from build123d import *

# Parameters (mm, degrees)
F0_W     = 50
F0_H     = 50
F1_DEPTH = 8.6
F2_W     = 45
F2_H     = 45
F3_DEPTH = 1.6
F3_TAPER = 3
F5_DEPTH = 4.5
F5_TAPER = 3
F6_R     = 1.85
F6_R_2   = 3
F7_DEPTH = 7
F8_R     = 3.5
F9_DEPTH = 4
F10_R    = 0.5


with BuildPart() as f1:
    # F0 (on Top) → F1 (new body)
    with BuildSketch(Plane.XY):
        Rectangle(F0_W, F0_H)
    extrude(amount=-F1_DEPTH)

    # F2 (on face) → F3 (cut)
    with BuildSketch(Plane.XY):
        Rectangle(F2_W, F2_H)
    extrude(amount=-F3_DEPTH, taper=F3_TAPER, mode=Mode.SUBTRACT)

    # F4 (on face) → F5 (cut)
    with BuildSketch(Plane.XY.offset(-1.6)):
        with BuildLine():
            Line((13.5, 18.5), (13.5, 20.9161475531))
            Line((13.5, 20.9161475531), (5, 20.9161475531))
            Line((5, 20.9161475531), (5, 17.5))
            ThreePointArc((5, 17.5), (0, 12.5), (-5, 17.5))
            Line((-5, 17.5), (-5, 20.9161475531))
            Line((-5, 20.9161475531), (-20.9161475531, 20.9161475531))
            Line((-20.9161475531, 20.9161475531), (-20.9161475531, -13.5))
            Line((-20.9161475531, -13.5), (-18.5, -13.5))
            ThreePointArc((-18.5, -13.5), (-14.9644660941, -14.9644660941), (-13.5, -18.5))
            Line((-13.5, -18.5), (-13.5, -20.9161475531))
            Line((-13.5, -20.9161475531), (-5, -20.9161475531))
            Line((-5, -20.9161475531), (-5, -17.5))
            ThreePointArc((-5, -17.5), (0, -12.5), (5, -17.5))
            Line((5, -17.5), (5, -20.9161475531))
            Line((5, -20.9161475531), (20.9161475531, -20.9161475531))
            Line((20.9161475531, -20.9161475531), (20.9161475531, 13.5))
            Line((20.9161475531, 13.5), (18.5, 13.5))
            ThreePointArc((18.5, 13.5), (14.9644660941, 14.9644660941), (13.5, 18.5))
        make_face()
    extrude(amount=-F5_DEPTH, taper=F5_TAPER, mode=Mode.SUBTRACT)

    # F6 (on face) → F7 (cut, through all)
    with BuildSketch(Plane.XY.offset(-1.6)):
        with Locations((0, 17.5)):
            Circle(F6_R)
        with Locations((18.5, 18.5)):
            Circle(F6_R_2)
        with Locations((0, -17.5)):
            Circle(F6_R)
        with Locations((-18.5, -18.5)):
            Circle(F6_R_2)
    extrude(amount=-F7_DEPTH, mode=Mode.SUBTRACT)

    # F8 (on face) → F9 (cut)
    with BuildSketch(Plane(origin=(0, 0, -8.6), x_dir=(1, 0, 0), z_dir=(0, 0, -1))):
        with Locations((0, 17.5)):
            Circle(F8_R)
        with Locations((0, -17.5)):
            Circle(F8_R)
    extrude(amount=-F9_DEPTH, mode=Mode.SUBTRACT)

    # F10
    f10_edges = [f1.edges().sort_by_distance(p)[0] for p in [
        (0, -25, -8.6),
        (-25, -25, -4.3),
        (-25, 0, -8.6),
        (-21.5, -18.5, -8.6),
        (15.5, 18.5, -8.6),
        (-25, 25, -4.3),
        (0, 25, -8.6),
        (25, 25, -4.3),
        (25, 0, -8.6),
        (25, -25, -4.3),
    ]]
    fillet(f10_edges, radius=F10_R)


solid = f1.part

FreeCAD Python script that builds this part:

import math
import FreeCAD as App
import Part
import Sketcher

V = App.Vector
Q = App.Units.Quantity


def edges_at(feature, points):
    """Names of the edges that pass closest to the given points."""
    edges = feature.Shape.Edges
    near = lambda p: min(range(len(edges)), key=lambda i: edges[i].distToShape(Part.Vertex(*p))[0])
    return sorted({f"Edge{near(p) + 1}" for p in points})

doc = App.newDocument("Part")
body = doc.addObject("PartDesign::Body", "Body")

# Sketch on XY plane
sketch1 = doc.addObject("Sketcher::SketchObject", "Sketch")
body.addObject(sketch1)
sketch1.AttachmentSupport = (doc.XY_Plane, [""])
sketch1.MapMode = "FlatFace"
sketch1.addGeometry(Part.LineSegment(V(-25, 25, 0), V(-25, -25, 0)), False)
sketch1.addGeometry(Part.LineSegment(V(-25, -25, 0), V(25, -25, 0)), False)
sketch1.addGeometry(Part.LineSegment(V(25, -25, 0), V(25, 25, 0)), False)
sketch1.addGeometry(Part.LineSegment(V(25, 25, 0), V(-25, 25, 0)), False)
sketch1.addConstraint(Sketcher.Constraint("Coincident", 0, 2, 1, 1))
sketch1.addConstraint(Sketcher.Constraint("Coincident", 1, 2, 2, 1))
sketch1.addConstraint(Sketcher.Constraint("Coincident", 2, 2, 3, 1))
sketch1.addConstraint(Sketcher.Constraint("Coincident", 3, 2, 0, 1))
sketch1.addConstraint(Sketcher.Constraint("Vertical", 0))
sketch1.addConstraint(Sketcher.Constraint("Horizontal", 1))
sketch1.addConstraint(Sketcher.Constraint("Vertical", 2))
sketch1.addConstraint(Sketcher.Constraint("Horizontal", 3))
sketch1.addConstraint(Sketcher.Constraint("Symmetric", 0, 2, 2, 2, -1, 1))
sketch1.addConstraint(Sketcher.Constraint("Equal", 3, 0))
sketch1.addConstraint(Sketcher.Constraint("DistanceX", 1, 1, 1, 2, Q("50 mm")))
pad1 = doc.addObject("PartDesign::Pad", "Pad")
body.addObject(pad1)
pad1.Profile = sketch1
pad1.Length = 8.6
pad1.Reversed = True

# Sketch on XY plane
sketch2 = doc.addObject("Sketcher::SketchObject", "Sketch001")
body.addObject(sketch2)
sketch2.AttachmentSupport = (doc.XY_Plane, [""])
sketch2.MapMode = "FlatFace"
sketch2.addGeometry(Part.LineSegment(V(-22, 22, 0), V(-22, -22, 0)), False)
sketch2.addGeometry(Part.LineSegment(V(-22, -22, 0), V(22, -22, 0)), False)
sketch2.addGeometry(Part.LineSegment(V(22, -22, 0), V(22, 22, 0)), False)
sketch2.addGeometry(Part.LineSegment(V(22, 22, 0), V(-22, 22, 0)), False)
sketch2.addConstraint(Sketcher.Constraint("Coincident", 0, 2, 1, 1))
sketch2.addConstraint(Sketcher.Constraint("Coincident", 1, 2, 2, 1))
sketch2.addConstraint(Sketcher.Constraint("Coincident", 2, 2, 3, 1))
sketch2.addConstraint(Sketcher.Constraint("Coincident", 3, 2, 0, 1))
sketch2.addConstraint(Sketcher.Constraint("Vertical", 0))
sketch2.addConstraint(Sketcher.Constraint("Horizontal", 1))
sketch2.addConstraint(Sketcher.Constraint("Vertical", 2))
sketch2.addConstraint(Sketcher.Constraint("Horizontal", 3))
sketch2.addConstraint(Sketcher.Constraint("Symmetric", 0, 2, 2, 2, -1, 1))
sketch2.addConstraint(Sketcher.Constraint("Equal", 3, 0))
sketch2.addConstraint(Sketcher.Constraint("DistanceX", 1, 1, 1, 2, Q("45 mm")))
pocket1 = doc.addObject("PartDesign::Pocket", "Pocket")
body.addObject(pocket1)
pocket1.Profile = sketch2
pocket1.Length = 1.6
pocket1.TaperAngle = -3

# Sketch on XY plane
sketch3 = doc.addObject("Sketcher::SketchObject", "Sketch002")
body.addObject(sketch3)
sketch3.AttachmentSupport = (doc.XY_Plane, [""])
sketch3.MapMode = "FlatFace"
sketch3.AttachmentOffset = App.Placement(V(0, 0, -1.6), App.Rotation())
sketch3.addGeometry(Part.LineSegment(V(13.5, 18.5, 0), V(13.5, 20.9, 0)), False)
sketch3.addGeometry(Part.LineSegment(V(13.5, 20.9, 0), V(5, 20.9, 0)), False)
sketch3.addGeometry(Part.LineSegment(V(5, 20.9, 0), V(5, 17.5, 0)), False)
sketch3.addGeometry(Part.ArcOfCircle(Part.Circle(V(0, 17.5, 0), V(0, 0, 1), 5), math.radians(180), math.radians(360)), False)
sketch3.addGeometry(Part.LineSegment(V(-5, 17.5, 0), V(-5, 20.9, 0)), False)
sketch3.addGeometry(Part.LineSegment(V(-5, 20.9, 0), V(-20.9, 20.9, 0)), False)
sketch3.addGeometry(Part.LineSegment(V(-20.9, 20.9, 0), V(-20.9, -13.5, 0)), False)
sketch3.addGeometry(Part.LineSegment(V(-20.9, -13.5, 0), V(-18.5, -13.5, 0)), False)
sketch3.addGeometry(Part.ArcOfCircle(Part.Circle(V(-18.5, -18.5, 0), V(0, 0, 1), 5), math.radians(0), math.radians(90)), False)
sketch3.addGeometry(Part.LineSegment(V(-13.5, -18.5, 0), V(-13.5, -20.9, 0)), False)
sketch3.addGeometry(Part.LineSegment(V(-13.5, -20.9, 0), V(-5, -20.9, 0)), False)
sketch3.addGeometry(Part.LineSegment(V(-5, -20.9, 0), V(-5, -17.5, 0)), False)
sketch3.addGeometry(Part.ArcOfCircle(Part.Circle(V(0, -17.5, 0), V(0, 0, 1), 5), math.radians(0), math.radians(180)), False)
sketch3.addGeometry(Part.LineSegment(V(5, -17.5, 0), V(5, -20.9, 0)), False)
sketch3.addGeometry(Part.LineSegment(V(5, -20.9, 0), V(20.9, -20.9, 0)), False)
sketch3.addGeometry(Part.LineSegment(V(20.9, -20.9, 0), V(20.9, 13.5, 0)), False)
sketch3.addGeometry(Part.LineSegment(V(20.9, 13.5, 0), V(18.5, 13.5, 0)), False)
sketch3.addGeometry(Part.ArcOfCircle(Part.Circle(V(18.5, 18.5, 0), V(0, 0, 1), 5), math.radians(180), math.radians(270)), False)
sketch3.addConstraint(Sketcher.Constraint("Coincident", 0, 2, 1, 1))
sketch3.addConstraint(Sketcher.Constraint("Coincident", 1, 2, 2, 1))
sketch3.addConstraint(Sketcher.Constraint("Tangent", 2, 2, 3, 2))
sketch3.addConstraint(Sketcher.Constraint("Tangent", 3, 1, 4, 1))
sketch3.addConstraint(Sketcher.Constraint("Coincident", 4, 2, 5, 1))
sketch3.addConstraint(Sketcher.Constraint("Coincident", 5, 2, 6, 1))
sketch3.addConstraint(Sketcher.Constraint("Coincident", 6, 2, 7, 1))
sketch3.addConstraint(Sketcher.Constraint("Tangent", 7, 2, 8, 2))
sketch3.addConstraint(Sketcher.Constraint("Tangent", 8, 1, 9, 1))
sketch3.addConstraint(Sketcher.Constraint("Coincident", 9, 2, 10, 1))
sketch3.addConstraint(Sketcher.Constraint("Coincident", 10, 2, 11, 1))
sketch3.addConstraint(Sketcher.Constraint("Tangent", 11, 2, 12, 2))
sketch3.addConstraint(Sketcher.Constraint("Tangent", 12, 1, 13, 1))
sketch3.addConstraint(Sketcher.Constraint("Coincident", 13, 2, 14, 1))
sketch3.addConstraint(Sketcher.Constraint("Coincident", 14, 2, 15, 1))
sketch3.addConstraint(Sketcher.Constraint("Coincident", 15, 2, 16, 1))
sketch3.addConstraint(Sketcher.Constraint("Tangent", 16, 2, 17, 2))
sketch3.addConstraint(Sketcher.Constraint("Tangent", 17, 1, 0, 1))
sketch3.addConstraint(Sketcher.Constraint("Vertical", 0))
sketch3.addConstraint(Sketcher.Constraint("Horizontal", 1))
sketch3.addConstraint(Sketcher.Constraint("Vertical", 2))
sketch3.addConstraint(Sketcher.Constraint("Vertical", 4))
sketch3.addConstraint(Sketcher.Constraint("Horizontal", 5))
sketch3.addConstraint(Sketcher.Constraint("Vertical", 6))
sketch3.addConstraint(Sketcher.Constraint("Horizontal", 7))
sketch3.addConstraint(Sketcher.Constraint("Vertical", 9))
sketch3.addConstraint(Sketcher.Constraint("Horizontal", 10))
sketch3.addConstraint(Sketcher.Constraint("Vertical", 11))
sketch3.addConstraint(Sketcher.Constraint("Vertical", 13))
sketch3.addConstraint(Sketcher.Constraint("Horizontal", 14))
sketch3.addConstraint(Sketcher.Constraint("Vertical", 15))
sketch3.addConstraint(Sketcher.Constraint("Horizontal", 16))
sketch3.addConstraint(Sketcher.Constraint("Equal", 3, 8))
sketch3.addConstraint(Sketcher.Constraint("Equal", 8, 12))
sketch3.addConstraint(Sketcher.Constraint("Equal", 12, 17))
sketch3.addConstraint(Sketcher.Constraint("Symmetric", 3, 3, 12, 3, -1, 1))
sketch3.addConstraint(Sketcher.Constraint("Symmetric", 8, 3, 17, 3, -1, 1))
sketch3.addConstraint(Sketcher.Constraint("Symmetric", 5, 2, 14, 2, -1, 1))
sketch3.addConstraint(Sketcher.Constraint("Symmetric", 1, 2, 4, 2, -2))
sketch3.addConstraint(Sketcher.Constraint("Horizontal", 10, 2, 13, 2))
sketch3.addConstraint(Sketcher.Constraint("Equal", 16, 0))
sketch3.addConstraint(Sketcher.Constraint("Radius", 3, Q("5 mm")))
sketch3.addConstraint(Sketcher.Constraint("DistanceX", 1, 2, 1, 1, Q("8.5 mm")))
sketch3.addConstraint(Sketcher.Constraint("DistanceY", 8, 3, 3, 3, Q("36 mm")))
sketch3.addConstraint(Sketcher.Constraint("DistanceY", 8, 3, 12, 3, Q("1 mm")))
sketch3.addConstraint(Sketcher.Constraint("DistanceX", 5, 2, 5, 1, Q("15.916148 mm")))
pocket2 = doc.addObject("PartDesign::Pocket", "Pocket001")
body.addObject(pocket2)
pocket2.Profile = sketch3
pocket2.Length = 4.5
pocket2.TaperAngle = -3

# Sketch on XY plane
sketch4 = doc.addObject("Sketcher::SketchObject", "Sketch003")
body.addObject(sketch4)
sketch4.AttachmentSupport = (doc.XY_Plane, [""])
sketch4.MapMode = "FlatFace"
sketch4.AttachmentOffset = App.Placement(V(0, 0, -1.6), App.Rotation())
sketch4.addGeometry(Part.Circle(V(0, 17.5, 0), V(0, 0, 1), 1.9), False)
sketch4.addGeometry(Part.Circle(V(18.5, 18.5, 0), V(0, 0, 1), 3), False)
sketch4.addGeometry(Part.Circle(V(0, -17.5, 0), V(0, 0, 1), 1.9), False)
sketch4.addGeometry(Part.Circle(V(-18.5, -18.5, 0), V(0, 0, 1), 3), False)
sketch4.addConstraint(Sketcher.Constraint("Equal", 0, 2))
sketch4.addConstraint(Sketcher.Constraint("Equal", 1, 3))
sketch4.addConstraint(Sketcher.Constraint("Symmetric", 0, 3, 2, 3, -1, 1))
sketch4.addConstraint(Sketcher.Constraint("Symmetric", 1, 3, 3, 3, -1, 1))
sketch4.addConstraint(Sketcher.Constraint("PointOnObject", 0, 3, -2))
sketch4.addConstraint(Sketcher.Constraint("Diameter", 1, Q("6 mm")))
sketch4.addConstraint(Sketcher.Constraint("Diameter", 0, Q("3.7 mm")))
sketch4.addConstraint(Sketcher.Constraint("DistanceY", 0, 3, 1, 3, Q("1 mm")))
sketch4.addConstraint(Sketcher.Constraint("DistanceY", 2, 3, 0, 3, Q("35 mm")))
sketch4.addConstraint(Sketcher.Constraint("DistanceX", 3, 3, 1, 3, Q("37 mm")))
pocket3 = doc.addObject("PartDesign::Pocket", "Pocket002")
body.addObject(pocket3)
pocket3.Profile = sketch4
pocket3.Type = "ThroughAll"

# Sketch on XY plane
sketch5 = doc.addObject("Sketcher::SketchObject", "Sketch004")
body.addObject(sketch5)
sketch5.AttachmentSupport = (doc.XY_Plane, [""])
sketch5.MapMode = "FlatFace"
sketch5.AttachmentOffset = App.Placement(V(0, 0, -8.6), App.Rotation())
sketch5.addGeometry(Part.Circle(V(0, -17.5, 0), V(0, 0, 1), 3.5), False)
sketch5.addGeometry(Part.Circle(V(0, 17.5, 0), V(0, 0, 1), 3.5), False)
sketch5.addConstraint(Sketcher.Constraint("Equal", 0, 1))
sketch5.addConstraint(Sketcher.Constraint("Symmetric", 0, 3, 1, 3, -1, 1))
sketch5.addConstraint(Sketcher.Constraint("PointOnObject", 0, 3, -2))
sketch5.addConstraint(Sketcher.Constraint("Diameter", 0, Q("7 mm")))
sketch5.addConstraint(Sketcher.Constraint("DistanceY", 0, 3, 1, 3, Q("35 mm")))
pocket4 = doc.addObject("PartDesign::Pocket", "Pocket003")
body.addObject(pocket4)
pocket4.Profile = sketch5
pocket4.Length = 4
pocket4.Reversed = True
doc.recompute()

fillet = doc.addObject("PartDesign::Fillet", "Fillet")
body.addObject(fillet)
fillet.Base = (pocket4, edges_at(pocket4, [
    (0, -25, -8.6),
    (-25, -25, -4.3),
    (-25, 0, -8.6),
    (-21.5, -18.5, -8.6),
    (15.5, 18.5, -8.6),
    (-25, 25, -4.3),
    (0, 25, -8.6),
    (25, 25, -4.3),
    (25, 0, -8.6),
    (25, -25, -4.3),
]))
fillet.Radius = 0.5

doc.recompute()
